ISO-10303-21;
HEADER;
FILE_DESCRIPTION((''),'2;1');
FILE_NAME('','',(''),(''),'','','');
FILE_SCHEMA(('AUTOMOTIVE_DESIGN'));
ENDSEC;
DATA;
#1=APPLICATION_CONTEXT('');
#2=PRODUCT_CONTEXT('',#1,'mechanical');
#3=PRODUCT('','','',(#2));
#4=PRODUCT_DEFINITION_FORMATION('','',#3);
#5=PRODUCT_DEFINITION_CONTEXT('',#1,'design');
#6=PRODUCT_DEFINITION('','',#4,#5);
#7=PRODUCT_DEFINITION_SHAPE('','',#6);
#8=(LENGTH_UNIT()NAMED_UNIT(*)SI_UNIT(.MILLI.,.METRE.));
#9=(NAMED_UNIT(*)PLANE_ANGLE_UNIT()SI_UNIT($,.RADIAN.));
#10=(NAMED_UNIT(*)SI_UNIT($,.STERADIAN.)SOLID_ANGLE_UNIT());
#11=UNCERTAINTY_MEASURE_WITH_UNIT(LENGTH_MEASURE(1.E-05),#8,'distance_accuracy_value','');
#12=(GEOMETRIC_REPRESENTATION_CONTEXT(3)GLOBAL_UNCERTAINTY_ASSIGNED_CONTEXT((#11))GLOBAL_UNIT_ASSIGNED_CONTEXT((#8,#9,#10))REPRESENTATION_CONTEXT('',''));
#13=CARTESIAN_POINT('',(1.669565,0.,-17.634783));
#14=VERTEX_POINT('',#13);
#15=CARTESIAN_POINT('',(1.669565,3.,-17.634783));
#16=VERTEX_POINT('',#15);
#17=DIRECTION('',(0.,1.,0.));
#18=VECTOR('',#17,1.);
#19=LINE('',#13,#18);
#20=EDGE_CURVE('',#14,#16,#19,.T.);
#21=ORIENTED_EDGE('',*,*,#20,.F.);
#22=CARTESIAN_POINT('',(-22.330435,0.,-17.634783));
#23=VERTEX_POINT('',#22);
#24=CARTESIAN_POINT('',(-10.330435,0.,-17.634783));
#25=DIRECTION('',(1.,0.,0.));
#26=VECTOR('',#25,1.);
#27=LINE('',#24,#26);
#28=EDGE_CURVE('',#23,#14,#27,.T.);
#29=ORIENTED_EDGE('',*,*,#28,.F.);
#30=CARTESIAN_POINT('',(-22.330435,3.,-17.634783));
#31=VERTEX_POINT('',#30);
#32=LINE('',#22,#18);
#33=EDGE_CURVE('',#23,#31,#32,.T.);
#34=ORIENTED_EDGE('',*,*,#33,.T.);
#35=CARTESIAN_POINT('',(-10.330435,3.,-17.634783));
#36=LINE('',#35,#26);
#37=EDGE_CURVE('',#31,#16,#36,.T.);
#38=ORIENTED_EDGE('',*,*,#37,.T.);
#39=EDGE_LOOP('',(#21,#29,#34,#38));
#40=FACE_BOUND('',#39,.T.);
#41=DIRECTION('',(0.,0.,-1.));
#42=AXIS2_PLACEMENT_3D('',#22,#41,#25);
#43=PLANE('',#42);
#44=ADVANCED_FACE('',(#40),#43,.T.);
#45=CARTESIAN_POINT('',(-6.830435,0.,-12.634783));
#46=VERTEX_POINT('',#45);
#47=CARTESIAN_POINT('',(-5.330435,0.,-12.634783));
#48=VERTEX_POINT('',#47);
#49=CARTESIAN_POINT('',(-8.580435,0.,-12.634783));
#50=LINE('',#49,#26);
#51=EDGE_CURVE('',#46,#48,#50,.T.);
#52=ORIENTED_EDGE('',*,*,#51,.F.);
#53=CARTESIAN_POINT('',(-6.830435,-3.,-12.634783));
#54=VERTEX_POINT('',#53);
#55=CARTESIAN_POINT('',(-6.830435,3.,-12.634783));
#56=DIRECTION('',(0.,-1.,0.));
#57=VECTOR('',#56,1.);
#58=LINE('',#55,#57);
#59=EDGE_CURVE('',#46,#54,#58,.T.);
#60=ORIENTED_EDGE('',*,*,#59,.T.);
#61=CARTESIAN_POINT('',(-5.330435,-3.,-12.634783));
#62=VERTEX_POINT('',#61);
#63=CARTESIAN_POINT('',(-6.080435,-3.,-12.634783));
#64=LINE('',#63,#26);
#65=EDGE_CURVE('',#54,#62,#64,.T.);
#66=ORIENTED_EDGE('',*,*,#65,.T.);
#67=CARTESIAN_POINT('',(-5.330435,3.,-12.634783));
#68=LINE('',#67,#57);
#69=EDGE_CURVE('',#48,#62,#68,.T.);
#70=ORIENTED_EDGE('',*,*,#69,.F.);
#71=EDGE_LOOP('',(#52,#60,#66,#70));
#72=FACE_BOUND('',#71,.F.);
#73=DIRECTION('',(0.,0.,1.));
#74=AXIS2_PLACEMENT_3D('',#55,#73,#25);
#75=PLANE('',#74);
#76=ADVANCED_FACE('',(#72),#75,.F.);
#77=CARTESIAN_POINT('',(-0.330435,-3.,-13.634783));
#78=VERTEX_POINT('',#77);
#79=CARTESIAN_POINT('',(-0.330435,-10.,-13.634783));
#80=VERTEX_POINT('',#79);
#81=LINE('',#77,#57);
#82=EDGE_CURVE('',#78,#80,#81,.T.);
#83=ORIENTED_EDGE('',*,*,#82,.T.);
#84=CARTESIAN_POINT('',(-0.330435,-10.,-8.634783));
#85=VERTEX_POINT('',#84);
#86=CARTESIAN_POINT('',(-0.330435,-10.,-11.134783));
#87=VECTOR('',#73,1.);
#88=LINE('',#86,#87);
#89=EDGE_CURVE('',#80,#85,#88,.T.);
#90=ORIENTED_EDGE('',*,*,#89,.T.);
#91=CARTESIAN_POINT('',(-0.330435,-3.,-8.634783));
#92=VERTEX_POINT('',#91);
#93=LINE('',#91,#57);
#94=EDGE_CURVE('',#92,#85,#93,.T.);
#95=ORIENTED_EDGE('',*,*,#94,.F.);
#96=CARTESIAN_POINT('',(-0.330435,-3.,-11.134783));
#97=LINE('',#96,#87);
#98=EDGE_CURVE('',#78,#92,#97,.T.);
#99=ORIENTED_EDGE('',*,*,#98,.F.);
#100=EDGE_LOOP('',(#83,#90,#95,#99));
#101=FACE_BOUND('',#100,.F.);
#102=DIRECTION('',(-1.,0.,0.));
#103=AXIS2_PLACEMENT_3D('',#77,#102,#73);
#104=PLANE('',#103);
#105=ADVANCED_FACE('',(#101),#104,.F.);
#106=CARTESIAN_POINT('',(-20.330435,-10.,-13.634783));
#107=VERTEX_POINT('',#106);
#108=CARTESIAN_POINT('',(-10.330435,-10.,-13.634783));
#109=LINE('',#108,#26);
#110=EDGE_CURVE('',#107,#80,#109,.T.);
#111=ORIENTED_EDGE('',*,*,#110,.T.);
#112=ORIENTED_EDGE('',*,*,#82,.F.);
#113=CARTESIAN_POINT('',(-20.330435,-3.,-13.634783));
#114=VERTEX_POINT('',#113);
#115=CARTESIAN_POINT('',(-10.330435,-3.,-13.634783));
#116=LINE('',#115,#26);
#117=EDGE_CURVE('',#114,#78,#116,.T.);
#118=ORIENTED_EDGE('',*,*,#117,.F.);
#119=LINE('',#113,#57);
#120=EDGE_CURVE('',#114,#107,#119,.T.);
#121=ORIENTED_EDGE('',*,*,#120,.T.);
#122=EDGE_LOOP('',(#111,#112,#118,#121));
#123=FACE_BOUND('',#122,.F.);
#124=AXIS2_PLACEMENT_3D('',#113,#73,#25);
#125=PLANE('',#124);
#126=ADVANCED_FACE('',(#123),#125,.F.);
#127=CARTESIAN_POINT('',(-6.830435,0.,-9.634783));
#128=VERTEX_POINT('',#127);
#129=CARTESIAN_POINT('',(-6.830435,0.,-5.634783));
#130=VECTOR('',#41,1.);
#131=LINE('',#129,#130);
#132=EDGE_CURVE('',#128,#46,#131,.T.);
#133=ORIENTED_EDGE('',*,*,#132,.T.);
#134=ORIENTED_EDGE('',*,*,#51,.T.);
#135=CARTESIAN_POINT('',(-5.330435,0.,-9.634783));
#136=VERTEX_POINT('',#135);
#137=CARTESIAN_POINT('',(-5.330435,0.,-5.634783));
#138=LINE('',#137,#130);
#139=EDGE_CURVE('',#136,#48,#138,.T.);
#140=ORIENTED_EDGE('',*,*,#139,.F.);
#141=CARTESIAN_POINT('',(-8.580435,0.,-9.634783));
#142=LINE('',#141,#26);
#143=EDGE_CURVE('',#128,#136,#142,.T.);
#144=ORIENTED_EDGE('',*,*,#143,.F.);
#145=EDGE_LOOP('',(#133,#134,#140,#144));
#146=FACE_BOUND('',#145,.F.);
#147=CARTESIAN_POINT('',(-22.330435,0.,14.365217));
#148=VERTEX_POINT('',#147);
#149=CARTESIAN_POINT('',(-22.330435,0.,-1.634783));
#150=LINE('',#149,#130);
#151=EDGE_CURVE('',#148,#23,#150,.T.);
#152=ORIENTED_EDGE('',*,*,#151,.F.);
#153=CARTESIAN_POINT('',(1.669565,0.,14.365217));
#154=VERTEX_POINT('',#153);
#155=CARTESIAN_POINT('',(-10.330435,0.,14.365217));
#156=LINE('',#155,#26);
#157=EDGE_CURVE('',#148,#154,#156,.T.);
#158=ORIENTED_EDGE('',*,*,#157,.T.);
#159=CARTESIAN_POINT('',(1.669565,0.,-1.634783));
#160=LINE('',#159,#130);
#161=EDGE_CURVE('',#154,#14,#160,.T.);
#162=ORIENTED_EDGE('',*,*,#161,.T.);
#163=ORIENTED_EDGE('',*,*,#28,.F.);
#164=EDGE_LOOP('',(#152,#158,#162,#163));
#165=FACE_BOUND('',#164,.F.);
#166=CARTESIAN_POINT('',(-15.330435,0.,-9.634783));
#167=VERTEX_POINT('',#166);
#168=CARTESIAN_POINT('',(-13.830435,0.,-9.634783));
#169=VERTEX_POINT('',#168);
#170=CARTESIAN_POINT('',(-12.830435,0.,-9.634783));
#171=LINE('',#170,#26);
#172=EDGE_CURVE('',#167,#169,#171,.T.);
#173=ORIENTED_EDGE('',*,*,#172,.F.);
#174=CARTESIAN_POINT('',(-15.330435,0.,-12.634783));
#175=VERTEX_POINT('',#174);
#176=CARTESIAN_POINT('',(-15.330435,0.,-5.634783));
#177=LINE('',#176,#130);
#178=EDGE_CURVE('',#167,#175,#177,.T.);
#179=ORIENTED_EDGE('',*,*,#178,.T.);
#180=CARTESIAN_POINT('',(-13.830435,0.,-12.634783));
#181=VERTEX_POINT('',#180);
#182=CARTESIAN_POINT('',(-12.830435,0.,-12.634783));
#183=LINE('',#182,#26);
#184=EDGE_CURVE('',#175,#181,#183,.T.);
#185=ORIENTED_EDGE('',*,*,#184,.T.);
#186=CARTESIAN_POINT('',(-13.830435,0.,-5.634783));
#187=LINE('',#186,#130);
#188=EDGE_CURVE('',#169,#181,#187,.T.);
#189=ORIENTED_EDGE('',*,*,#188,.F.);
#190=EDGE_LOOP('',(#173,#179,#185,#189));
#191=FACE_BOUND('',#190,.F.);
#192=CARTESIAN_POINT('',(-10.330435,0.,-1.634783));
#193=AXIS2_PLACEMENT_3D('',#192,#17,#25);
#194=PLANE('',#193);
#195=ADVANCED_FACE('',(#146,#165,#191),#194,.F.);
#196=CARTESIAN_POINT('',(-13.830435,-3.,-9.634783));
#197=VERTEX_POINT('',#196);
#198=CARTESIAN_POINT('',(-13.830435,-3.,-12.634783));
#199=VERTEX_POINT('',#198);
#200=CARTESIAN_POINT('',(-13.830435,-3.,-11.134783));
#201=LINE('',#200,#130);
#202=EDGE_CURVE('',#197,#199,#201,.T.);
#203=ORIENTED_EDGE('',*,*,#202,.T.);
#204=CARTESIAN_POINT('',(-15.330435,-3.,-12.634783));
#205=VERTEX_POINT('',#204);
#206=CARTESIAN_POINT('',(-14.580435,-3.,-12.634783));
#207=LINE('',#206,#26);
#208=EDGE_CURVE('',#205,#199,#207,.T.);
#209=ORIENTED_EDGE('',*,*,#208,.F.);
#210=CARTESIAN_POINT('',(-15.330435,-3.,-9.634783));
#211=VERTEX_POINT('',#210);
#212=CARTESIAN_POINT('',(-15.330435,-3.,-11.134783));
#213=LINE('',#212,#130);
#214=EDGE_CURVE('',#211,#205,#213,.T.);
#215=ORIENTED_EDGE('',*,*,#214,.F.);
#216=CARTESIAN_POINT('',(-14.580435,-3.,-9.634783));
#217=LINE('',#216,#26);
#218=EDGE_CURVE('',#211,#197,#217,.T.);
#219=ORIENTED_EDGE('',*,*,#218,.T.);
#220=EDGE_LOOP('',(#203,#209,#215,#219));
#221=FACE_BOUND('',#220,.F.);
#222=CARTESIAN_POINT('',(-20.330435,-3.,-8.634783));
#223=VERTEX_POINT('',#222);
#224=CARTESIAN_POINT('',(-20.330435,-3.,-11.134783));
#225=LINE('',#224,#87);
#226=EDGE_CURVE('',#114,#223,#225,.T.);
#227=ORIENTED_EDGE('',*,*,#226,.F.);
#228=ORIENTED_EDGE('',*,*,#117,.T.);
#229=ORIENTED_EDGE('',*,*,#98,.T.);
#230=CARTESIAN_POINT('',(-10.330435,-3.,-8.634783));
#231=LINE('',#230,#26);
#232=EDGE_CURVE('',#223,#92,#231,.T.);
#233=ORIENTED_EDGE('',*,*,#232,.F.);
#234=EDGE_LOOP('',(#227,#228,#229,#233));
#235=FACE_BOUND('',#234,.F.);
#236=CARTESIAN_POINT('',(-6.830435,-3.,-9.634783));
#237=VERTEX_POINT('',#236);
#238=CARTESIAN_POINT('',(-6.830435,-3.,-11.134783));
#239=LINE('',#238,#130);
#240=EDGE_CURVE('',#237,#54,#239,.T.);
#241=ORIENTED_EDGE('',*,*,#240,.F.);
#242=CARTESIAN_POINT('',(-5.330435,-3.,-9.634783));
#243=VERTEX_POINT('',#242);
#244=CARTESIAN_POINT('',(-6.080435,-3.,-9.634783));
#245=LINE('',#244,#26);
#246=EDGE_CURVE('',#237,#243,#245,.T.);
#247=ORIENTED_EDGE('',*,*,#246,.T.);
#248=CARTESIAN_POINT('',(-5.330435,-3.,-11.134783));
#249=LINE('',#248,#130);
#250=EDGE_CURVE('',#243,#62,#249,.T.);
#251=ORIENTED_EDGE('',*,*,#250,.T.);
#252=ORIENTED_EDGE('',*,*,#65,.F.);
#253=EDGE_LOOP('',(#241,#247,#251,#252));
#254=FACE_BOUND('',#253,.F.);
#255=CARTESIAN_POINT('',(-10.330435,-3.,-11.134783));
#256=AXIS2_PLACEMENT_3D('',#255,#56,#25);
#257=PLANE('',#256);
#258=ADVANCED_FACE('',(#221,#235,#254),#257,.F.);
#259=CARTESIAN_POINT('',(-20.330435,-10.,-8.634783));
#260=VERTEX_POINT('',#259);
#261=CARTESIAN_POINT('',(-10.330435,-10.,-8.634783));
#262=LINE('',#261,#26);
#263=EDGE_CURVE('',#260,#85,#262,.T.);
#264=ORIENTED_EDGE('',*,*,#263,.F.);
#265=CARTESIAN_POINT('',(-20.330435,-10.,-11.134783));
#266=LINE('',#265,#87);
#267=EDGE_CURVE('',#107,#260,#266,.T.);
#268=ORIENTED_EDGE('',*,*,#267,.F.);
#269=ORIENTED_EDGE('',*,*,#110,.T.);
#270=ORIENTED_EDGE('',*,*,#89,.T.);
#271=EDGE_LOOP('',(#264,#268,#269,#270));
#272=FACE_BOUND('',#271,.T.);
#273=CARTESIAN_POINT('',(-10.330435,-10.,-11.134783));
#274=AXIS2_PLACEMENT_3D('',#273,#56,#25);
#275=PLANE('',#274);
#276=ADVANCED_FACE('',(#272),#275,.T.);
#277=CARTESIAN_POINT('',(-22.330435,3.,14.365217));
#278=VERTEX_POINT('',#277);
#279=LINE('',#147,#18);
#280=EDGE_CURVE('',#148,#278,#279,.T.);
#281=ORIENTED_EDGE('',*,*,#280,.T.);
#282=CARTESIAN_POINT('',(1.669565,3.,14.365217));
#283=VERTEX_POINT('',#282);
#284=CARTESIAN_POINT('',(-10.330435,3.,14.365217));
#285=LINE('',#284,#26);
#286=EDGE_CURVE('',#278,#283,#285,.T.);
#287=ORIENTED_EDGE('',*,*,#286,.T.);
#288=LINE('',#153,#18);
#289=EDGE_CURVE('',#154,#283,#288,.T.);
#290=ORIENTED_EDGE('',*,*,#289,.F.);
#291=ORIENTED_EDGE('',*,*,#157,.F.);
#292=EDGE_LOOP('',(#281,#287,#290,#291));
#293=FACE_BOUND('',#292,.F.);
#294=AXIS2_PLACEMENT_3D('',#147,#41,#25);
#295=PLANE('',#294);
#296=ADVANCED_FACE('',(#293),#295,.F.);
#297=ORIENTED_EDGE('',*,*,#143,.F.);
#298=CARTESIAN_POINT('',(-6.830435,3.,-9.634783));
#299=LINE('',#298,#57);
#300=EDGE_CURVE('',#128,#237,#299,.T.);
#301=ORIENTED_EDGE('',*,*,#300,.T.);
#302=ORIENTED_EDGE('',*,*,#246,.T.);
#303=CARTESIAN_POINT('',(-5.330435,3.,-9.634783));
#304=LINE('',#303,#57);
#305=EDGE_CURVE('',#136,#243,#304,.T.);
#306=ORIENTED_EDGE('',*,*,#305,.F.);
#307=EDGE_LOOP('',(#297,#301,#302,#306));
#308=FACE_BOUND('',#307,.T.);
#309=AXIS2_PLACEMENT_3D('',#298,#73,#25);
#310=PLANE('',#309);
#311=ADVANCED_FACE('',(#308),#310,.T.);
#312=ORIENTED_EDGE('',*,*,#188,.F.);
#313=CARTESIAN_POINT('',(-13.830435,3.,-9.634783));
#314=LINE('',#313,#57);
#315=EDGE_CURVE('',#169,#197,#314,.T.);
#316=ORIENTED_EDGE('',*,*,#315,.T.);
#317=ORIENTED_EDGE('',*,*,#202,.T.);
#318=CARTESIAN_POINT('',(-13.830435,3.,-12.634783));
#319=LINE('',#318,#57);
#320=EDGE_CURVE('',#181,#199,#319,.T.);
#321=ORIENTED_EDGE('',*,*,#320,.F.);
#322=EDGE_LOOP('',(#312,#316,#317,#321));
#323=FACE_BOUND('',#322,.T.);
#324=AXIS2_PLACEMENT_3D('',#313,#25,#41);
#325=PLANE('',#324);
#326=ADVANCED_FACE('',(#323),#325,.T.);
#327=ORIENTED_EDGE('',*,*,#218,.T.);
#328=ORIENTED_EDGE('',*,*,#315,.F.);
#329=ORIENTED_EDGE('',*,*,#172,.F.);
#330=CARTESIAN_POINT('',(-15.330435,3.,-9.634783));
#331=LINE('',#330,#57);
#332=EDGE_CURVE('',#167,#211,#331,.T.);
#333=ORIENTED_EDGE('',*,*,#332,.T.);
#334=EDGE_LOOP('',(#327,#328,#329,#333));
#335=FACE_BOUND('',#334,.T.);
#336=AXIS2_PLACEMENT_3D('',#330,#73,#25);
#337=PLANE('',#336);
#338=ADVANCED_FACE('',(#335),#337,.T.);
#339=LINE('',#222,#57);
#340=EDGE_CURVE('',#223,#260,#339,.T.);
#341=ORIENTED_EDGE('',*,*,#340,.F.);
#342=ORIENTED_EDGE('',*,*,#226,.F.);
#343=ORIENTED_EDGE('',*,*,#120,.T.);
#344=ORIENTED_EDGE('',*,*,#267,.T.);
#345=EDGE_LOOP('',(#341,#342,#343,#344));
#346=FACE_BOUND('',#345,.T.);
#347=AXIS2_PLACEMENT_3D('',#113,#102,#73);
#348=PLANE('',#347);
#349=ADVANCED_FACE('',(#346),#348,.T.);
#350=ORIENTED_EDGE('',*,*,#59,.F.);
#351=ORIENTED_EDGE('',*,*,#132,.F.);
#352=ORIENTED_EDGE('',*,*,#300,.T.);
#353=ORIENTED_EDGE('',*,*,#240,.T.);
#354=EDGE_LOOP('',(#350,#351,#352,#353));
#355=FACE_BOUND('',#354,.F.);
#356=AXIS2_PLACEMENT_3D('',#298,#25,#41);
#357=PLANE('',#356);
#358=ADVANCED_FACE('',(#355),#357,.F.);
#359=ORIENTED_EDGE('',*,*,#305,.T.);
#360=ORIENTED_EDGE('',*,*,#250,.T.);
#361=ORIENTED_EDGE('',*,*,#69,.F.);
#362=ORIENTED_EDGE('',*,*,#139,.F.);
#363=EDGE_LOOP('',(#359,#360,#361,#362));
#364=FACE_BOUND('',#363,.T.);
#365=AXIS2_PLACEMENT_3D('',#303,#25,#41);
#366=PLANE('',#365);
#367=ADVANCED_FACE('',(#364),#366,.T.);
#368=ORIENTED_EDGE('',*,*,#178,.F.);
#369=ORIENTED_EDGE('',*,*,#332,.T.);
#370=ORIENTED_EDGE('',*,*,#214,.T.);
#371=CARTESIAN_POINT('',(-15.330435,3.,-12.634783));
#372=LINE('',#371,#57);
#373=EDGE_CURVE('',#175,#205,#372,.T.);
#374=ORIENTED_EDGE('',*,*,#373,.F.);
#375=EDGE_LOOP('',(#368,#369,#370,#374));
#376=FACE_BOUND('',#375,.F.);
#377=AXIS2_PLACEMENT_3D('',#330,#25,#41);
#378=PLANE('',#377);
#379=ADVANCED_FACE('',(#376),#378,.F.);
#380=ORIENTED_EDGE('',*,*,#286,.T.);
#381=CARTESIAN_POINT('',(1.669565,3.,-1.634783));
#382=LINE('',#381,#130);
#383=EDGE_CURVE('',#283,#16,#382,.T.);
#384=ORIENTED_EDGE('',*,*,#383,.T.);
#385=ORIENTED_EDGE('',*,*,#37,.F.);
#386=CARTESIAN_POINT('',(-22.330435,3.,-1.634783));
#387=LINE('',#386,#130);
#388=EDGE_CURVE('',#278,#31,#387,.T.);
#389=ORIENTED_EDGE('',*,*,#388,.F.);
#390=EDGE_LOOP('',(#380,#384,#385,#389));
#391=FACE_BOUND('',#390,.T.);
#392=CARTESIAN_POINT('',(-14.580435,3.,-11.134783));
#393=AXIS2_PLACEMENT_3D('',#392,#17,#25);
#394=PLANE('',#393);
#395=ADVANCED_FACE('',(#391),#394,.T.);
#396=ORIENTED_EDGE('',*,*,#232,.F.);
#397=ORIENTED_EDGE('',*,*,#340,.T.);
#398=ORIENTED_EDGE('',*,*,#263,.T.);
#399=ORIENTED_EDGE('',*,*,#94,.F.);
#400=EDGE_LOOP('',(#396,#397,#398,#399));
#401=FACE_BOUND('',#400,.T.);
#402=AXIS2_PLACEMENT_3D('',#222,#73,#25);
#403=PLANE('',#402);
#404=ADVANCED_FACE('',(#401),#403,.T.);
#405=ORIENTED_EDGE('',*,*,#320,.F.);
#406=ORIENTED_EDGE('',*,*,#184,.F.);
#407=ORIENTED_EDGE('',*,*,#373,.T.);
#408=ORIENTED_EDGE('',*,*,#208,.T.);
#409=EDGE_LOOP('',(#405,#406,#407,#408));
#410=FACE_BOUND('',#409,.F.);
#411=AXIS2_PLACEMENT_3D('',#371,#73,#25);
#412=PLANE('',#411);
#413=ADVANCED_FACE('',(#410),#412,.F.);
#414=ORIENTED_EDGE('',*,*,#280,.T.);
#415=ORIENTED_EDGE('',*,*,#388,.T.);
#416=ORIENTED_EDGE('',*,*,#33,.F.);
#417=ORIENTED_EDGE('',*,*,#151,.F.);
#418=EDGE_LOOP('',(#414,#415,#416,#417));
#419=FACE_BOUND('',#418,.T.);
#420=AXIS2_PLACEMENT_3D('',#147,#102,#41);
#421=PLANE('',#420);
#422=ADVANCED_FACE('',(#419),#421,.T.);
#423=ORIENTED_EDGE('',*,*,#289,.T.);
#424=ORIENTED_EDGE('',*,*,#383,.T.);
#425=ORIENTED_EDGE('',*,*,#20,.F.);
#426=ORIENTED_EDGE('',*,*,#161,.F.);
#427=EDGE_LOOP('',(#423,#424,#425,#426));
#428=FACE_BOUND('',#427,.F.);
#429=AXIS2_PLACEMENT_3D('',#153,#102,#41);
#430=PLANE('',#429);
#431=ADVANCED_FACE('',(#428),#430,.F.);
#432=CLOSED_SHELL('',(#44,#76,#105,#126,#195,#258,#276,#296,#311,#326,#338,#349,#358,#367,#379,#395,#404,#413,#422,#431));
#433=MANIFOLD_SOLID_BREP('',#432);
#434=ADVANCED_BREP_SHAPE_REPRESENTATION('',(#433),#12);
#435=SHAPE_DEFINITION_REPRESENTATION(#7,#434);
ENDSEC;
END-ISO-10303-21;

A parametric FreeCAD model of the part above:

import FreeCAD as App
import Part
import Sketcher
from FreeCAD import Vector
Q = App.Units.Quantity

doc = App.newDocument("Part")
body = doc.addObject("PartDesign::Body", "Body")

# Sketch on XZ plane
sketch1 = body.newObject("Sketcher::SketchObject", "Sketch")
sketch1.AttachmentSupport = (doc.getObject("XZ_Plane"), [""])
sketch1.MapMode = "FlatFace"
sketch1.addGeometry([
    Part.LineSegment(Vector(-22, -18, 0), Vector(-22, 14, 0)),
    Part.LineSegment(Vector(-22, 14, 0), Vector(2, 14, 0)),
    Part.LineSegment(Vector(2, 14, 0), Vector(2, -18, 0)),
    Part.LineSegment(Vector(2, -18, 0), Vector(-22, -18, 0)),
], False)
sketch1.addConstraint([
    Sketcher.Constraint("Coincident", 0, 2, 1, 1),
    Sketcher.Constraint("Coincident", 1, 2, 2, 1),
    Sketcher.Constraint("Coincident", 2, 2, 3, 1),
    Sketcher.Constraint("Coincident", 3, 2, 0, 1),
    Sketcher.Constraint("Vertical", 0),
    Sketcher.Constraint("Horizontal", 1),
    Sketcher.Constraint("Vertical", 2),
    Sketcher.Constraint("Horizontal", 3),
    Sketcher.Constraint("DistanceX", 1, 1, 1, 2, Q("24 mm")),
    Sketcher.Constraint("DistanceY", 0, 1, 0, 2, Q("32 mm")),
    Sketcher.Constraint("DistanceX", 0, 2, -1, 1, Q("22.330435 mm")),
    Sketcher.Constraint("DistanceY", -1, 1, 0, 2, Q("14.365217 mm")),
])
pad1 = body.newObject("PartDesign::Pad", "Pad")
pad1.Profile = sketch1
pad1.Length = 3
pad1.Reversed = True

# Sketch on XZ plane
sketch2 = body.newObject("Sketcher::SketchObject", "Sketch001")
sketch2.AttachmentSupport = (doc.getObject("XZ_Plane"), [""])
sketch2.MapMode = "FlatFace"
sketch2.AttachmentOffset = App.Placement(Vector(0, 0, -3), App.Rotation())
sketch2.addGeometry([
    Part.LineSegment(Vector(-15.3, -12.6, 0), Vector(-15.3, -9.6, 0)),  # 0
    Part.LineSegment(Vector(-15.3, -9.6, 0), Vector(-13.8, -9.6, 0)),  # 1
    Part.LineSegment(Vector(-13.8, -9.6, 0), Vector(-13.8, -12.6, 0)),  # 2
    Part.LineSegment(Vector(-13.8, -12.6, 0), Vector(-15.3, -12.6, 0)),  # 3
    Part.LineSegment(Vector(-6.8, -12.6, 0), Vector(-6.8, -9.6, 0)),  # 4
    Part.LineSegment(Vector(-6.8, -9.6, 0), Vector(-5.3, -9.6, 0)),  # 5
    Part.LineSegment(Vector(-5.3, -9.6, 0), Vector(-5.3, -12.6, 0)),  # 6
    Part.LineSegment(Vector(-5.3, -12.6, 0), Vector(-6.8, -12.6, 0)),  # 7
], False)
sketch2.addConstraint([
    Sketcher.Constraint("Coincident", 0, 2, 1, 1),
    Sketcher.Constraint("Coincident", 1, 2, 2, 1),
    Sketcher.Constraint("Coincident", 2, 2, 3, 1),
    Sketcher.Constraint("Coincident", 3, 2, 0, 1),
    Sketcher.Constraint("Coincident", 4, 2, 5, 1),
    Sketcher.Constraint("Coincident", 5, 2, 6, 1),
    Sketcher.Constraint("Coincident", 6, 2, 7, 1),
    Sketcher.Constraint("Coincident", 7, 2, 4, 1),
    Sketcher.Constraint("Vertical", 0),
    Sketcher.Constraint("Horizontal", 1),
    Sketcher.Constraint("Vertical", 2),
    Sketcher.Constraint("Horizontal", 3),
    Sketcher.Constraint("Vertical", 4),
    Sketcher.Constraint("Horizontal", 5),
    Sketcher.Constraint("Vertical", 6),
    Sketcher.Constraint("Horizontal", 7),
    Sketcher.Constraint("Horizontal", 1, 2, 4, 2),
    Sketcher.Constraint("Horizontal", 3, 2, 6, 2),
    Sketcher.Constraint("Equal", 3, 5),
    Sketcher.Constraint("DistanceY", 0, 1, 0, 2, Q("3 mm")),
    Sketcher.Constraint("DistanceX", 1, 1, 1, 2, Q("1.5 mm")),
    Sketcher.Constraint("DistanceX", 1, 2, 4, 2, Q("7 mm")),
    Sketcher.Constraint("DistanceX", 0, 2, -1, 1, Q("15.330435 mm")),
    Sketcher.Constraint("DistanceY", 0, 2, -1, 1, Q("9.634783 mm")),
])
pad2 = body.newObject("PartDesign::Pad", "Pad001")
pad2.Profile = sketch2
pad2.Length = 6

# Sketch on XZ plane
sketch3 = body.newObject("Sketcher::SketchObject", "Sketch002")
sketch3.AttachmentSupport = (doc.getObject("XZ_Plane"), [""])
sketch3.MapMode = "FlatFace"
sketch3.AttachmentOffset = App.Placement(Vector(0, 0, 3), App.Rotation())
sketch3.addGeometry([
    Part.LineSegment(Vector(-20, -9, 0), Vector(-20, -14, 0)),
    Part.LineSegment(Vector(-20, -14, 0), Vector(0, -14, 0)),
    Part.LineSegment(Vector(0, -14, 0), Vector(0, -9, 0)),
    Part.LineSegment(Vector(0, -9, 0), Vector(-20, -9, 0)),
], False)
sketch3.addConstraint([
    Sketcher.Constraint("Coincident", 0, 2, 1, 1),
    Sketcher.Constraint("Coincident", 1, 2, 2, 1),
    Sketcher.Constraint("Coincident", 2, 2, 3, 1),
    Sketcher.Constraint("Coincident", 3, 2, 0, 1),
    Sketcher.Constraint("Vertical", 0),
    Sketcher.Constraint("Horizontal", 1),
    Sketcher.Constraint("Vertical", 2),
    Sketcher.Constraint("Horizontal", 3),
    Sketcher.Constraint("DistanceX", 1, 1, 1, 2, Q("20 mm")),
    Sketcher.Constraint("DistanceY", 0, 2, 0, 1, Q("5 mm")),
    Sketcher.Constraint("DistanceX", 0, 2, -1, 1, Q("20.330435 mm")),
    Sketcher.Constraint("DistanceY", 0, 2, -1, 1, Q("13.634783 mm")),
])
pad3 = body.newObject("PartDesign::Pad", "Pad002")
pad3.Profile = sketch3
pad3.Length = 7

doc.recompute()
